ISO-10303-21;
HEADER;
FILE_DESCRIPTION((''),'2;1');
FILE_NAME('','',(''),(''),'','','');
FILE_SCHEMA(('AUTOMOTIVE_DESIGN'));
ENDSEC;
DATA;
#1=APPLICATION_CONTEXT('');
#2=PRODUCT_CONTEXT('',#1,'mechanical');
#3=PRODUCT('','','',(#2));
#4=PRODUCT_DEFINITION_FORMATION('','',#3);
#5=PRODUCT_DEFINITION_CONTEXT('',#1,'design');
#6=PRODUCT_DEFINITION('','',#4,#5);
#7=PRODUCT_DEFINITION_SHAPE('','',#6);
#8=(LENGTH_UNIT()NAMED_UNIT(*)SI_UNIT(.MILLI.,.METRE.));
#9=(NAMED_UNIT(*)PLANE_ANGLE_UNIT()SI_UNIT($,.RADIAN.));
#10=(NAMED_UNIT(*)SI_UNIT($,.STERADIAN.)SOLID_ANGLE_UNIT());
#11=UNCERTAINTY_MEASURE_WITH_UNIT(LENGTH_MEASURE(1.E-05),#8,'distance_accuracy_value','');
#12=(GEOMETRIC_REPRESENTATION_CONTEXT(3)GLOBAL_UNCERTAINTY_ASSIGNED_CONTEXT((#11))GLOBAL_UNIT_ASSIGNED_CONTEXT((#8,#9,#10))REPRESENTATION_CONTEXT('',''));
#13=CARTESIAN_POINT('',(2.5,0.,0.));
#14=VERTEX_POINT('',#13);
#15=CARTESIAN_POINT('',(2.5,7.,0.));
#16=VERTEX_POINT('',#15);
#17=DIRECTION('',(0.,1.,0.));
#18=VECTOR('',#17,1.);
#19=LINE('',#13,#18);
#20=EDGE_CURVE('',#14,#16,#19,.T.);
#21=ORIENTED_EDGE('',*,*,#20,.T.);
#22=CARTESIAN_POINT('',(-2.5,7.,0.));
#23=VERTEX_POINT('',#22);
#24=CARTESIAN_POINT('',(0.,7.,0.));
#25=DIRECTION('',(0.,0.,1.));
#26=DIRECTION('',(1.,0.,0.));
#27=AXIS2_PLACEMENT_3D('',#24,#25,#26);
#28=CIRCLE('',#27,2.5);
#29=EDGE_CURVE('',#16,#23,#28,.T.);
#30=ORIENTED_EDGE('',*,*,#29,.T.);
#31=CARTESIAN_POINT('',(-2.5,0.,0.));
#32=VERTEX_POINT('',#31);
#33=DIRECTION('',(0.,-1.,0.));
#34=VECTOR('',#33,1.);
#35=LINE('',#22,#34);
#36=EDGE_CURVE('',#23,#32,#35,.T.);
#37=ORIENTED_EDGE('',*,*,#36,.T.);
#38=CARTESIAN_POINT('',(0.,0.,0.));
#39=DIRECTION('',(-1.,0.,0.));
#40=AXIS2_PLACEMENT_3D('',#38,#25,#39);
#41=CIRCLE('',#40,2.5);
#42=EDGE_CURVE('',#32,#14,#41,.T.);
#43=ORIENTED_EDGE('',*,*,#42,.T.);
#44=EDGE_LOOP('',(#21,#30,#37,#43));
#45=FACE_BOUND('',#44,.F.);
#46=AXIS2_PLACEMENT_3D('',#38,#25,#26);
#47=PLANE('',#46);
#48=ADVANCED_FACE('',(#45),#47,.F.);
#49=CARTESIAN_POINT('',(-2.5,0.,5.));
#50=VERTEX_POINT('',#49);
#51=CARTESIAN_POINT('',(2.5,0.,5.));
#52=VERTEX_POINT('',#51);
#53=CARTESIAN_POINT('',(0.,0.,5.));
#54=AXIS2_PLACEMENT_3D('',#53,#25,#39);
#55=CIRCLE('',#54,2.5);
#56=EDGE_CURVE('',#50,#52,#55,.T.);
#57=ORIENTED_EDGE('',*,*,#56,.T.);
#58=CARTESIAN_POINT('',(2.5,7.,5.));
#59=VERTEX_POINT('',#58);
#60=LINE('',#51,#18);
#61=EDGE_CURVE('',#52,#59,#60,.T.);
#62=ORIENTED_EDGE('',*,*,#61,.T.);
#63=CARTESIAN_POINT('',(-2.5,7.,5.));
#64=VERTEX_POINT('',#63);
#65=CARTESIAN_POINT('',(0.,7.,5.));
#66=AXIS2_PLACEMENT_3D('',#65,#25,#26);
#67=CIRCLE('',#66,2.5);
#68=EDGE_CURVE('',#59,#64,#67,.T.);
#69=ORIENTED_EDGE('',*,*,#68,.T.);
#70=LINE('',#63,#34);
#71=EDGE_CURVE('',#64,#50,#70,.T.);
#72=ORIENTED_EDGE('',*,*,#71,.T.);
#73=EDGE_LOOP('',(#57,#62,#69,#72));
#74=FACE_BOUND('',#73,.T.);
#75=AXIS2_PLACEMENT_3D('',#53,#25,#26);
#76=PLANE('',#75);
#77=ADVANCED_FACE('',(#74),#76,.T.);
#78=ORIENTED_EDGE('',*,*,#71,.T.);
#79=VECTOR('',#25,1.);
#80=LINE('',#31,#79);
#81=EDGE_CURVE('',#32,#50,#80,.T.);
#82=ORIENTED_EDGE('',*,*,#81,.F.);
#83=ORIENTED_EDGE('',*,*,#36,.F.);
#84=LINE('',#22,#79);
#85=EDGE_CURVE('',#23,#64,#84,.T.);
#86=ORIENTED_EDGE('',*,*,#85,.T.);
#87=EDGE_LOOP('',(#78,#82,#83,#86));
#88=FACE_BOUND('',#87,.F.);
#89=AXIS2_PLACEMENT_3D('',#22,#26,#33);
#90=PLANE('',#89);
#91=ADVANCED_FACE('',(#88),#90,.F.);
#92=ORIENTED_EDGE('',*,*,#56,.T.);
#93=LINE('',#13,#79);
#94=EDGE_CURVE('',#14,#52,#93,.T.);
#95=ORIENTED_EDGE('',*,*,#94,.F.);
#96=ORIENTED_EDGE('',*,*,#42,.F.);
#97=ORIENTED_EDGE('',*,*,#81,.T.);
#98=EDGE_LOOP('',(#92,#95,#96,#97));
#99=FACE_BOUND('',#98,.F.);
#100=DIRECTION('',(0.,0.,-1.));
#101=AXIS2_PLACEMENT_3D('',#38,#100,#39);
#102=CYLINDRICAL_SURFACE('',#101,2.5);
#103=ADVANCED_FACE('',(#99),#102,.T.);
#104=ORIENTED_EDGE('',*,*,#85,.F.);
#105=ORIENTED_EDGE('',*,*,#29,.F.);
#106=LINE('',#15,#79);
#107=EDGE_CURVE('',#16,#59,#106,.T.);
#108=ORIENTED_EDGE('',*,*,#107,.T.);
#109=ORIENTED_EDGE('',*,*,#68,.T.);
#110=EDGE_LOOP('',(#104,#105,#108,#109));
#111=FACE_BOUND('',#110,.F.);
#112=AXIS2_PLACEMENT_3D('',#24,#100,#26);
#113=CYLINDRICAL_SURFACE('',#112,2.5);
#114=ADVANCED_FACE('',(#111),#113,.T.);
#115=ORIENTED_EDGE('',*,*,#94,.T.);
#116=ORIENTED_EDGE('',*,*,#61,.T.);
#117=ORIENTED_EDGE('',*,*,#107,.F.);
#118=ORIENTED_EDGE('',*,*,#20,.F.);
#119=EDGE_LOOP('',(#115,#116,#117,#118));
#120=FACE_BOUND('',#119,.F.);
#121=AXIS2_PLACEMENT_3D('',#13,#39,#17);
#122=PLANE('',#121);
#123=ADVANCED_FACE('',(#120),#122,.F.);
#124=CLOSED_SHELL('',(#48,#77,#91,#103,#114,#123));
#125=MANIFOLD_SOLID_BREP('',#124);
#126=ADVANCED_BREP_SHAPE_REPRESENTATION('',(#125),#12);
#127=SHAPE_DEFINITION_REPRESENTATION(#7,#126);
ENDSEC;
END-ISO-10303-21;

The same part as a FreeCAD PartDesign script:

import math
import FreeCAD as App
import Part
import Sketcher
from FreeCAD import Vector
Q = App.Units.Quantity

doc = App.newDocument("Part")
body = doc.addObject("PartDesign::Body", "Body")

# Sketch on XY plane
sketch1 = body.newObject("Sketcher::SketchObject", "Sketch")
sketch1.AttachmentSupport = (doc.getObject("XY_Plane"), [""])
sketch1.MapMode = "FlatFace"
sketch1.addGeometry(Part.ArcOfCircle(Part.Circle(Vector(0, 0, 0), Vector(0, 0, 1), 2.5), math.radians(180), math.radians(360)), False)
sketch1.addGeometry(Part.LineSegment(Vector(2.5, 0, 0), Vector(2.5, 7, 0)), False)
sketch1.addGeometry(Part.ArcOfCircle(Part.Circle(Vector(0, 7, 0), Vector(0, 0, 1), 2.5), math.radians(0), math.radians(180)), False)
sketch1.addGeometry(Part.LineSegment(Vector(-2.5, 7, 0), Vector(-2.5, 0, 0)), False)
sketch1.addConstraint(Sketcher.Constraint("Tangent", 0, 2, 1, 1))
sketch1.addConstraint(Sketcher.Constraint("Tangent", 1, 2, 2, 1))
sketch1.addConstraint(Sketcher.Constraint("Tangent", 2, 2, 3, 1))
sketch1.addConstraint(Sketcher.Constraint("Tangent", 3, 2, 0, 1))
sketch1.addConstraint(Sketcher.Constraint("Vertical", 1))
sketch1.addConstraint(Sketcher.Constraint("Vertical", 3))
sketch1.addConstraint(Sketcher.Constraint("Coincident", 0, 3, -1, 1))
sketch1.addConstraint(Sketcher.Constraint("Radius", 0, Q("2.5 mm")))
sketch1.addConstraint(Sketcher.Constraint("DistanceY", 1, 1, 1, 2, Q("7 mm")))
pad1 = body.newObject("PartDesign::Pad", "Pad")
pad1.Profile = sketch1
pad1.Length = 5

doc.recompute()
